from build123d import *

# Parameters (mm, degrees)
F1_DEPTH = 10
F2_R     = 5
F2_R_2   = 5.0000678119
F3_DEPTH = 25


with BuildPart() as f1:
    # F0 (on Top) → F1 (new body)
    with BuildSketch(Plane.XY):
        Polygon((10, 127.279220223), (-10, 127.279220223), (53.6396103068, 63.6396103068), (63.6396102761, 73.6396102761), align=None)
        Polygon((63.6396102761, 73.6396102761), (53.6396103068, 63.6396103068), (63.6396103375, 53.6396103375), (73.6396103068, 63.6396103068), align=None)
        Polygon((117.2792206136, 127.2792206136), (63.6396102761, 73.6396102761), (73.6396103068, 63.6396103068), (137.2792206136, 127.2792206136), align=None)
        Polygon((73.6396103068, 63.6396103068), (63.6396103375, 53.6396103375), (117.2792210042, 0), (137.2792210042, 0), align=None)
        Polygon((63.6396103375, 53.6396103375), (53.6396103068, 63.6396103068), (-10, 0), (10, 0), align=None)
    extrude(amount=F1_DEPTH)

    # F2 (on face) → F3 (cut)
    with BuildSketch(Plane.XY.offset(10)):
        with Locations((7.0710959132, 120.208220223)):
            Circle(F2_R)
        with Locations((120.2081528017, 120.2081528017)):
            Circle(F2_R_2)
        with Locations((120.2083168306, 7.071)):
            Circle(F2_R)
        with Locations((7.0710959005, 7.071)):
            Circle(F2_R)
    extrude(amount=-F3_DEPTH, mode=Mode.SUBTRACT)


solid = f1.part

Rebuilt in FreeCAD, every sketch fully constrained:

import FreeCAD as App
import Part
import Sketcher

V = App.Vector
Q = App.Units.Quantity


def add_polygon(sketch, points):
    """Adds a closed chain of lines whose ends are joined by coincident constraints."""
    first, n = sketch.GeometryCount, len(points)
    for a, b in zip(points, points[1:] + points[:1]):
        sketch.addGeometry(Part.LineSegment(App.Vector(*a, 0), App.Vector(*b, 0)), False)
    for i in range(n):
        sketch.addConstraint(Sketcher.Constraint("Coincident", first + i, 2, first + (i + 1) % n, 1))

doc = App.newDocument("Part")
params = doc.addObject("Spreadsheet::Sheet", "Params")
for row, (alias, value) in enumerate([
    ("sketch1_width", "20 mm"),
    ("sketch1_length", "90 mm"),
    ("pad1_length", "10 mm"),
    ("sketch2_diameter", "10 mm"),
    ("pocket1_length", "25 mm"),
], start=1):
    params.set(f"A{row}", alias)
    params.set(f"B{row}", "=" + value)
    params.setAlias(f"B{row}", alias)

body = doc.addObject("PartDesign::Body", "Body")

# Sketch on XY plane
sketch1 = body.newObject("Sketcher::SketchObject", "Sketch")
sketch1.AttachmentSupport = (doc.getObject("XY_Plane"), [""])
sketch1.MapMode = "FlatFace"
add_polygon(sketch1, [(10, 127), (-10, 127), (54, 64), (-10, 0), (10, 0), (64, 54), (117, 0), (137, 0), (74, 64), (137, 127), (117, 127), (64, 74)])  # lines 0-11
sketch1.addConstraint(Sketcher.Constraint("Horizontal", 0))
sketch1.addConstraint(Sketcher.Constraint("Horizontal", 3))
sketch1.addConstraint(Sketcher.Constraint("Horizontal", 6))
sketch1.addConstraint(Sketcher.Constraint("Horizontal", 9))
sketch1.addConstraint(Sketcher.Constraint("Symmetric", 2, 2, 3, 2, -1, 1))
sketch1.addConstraint(Sketcher.Constraint("PointOnObject", 5, 2, -1))
sketch1.addConstraint(Sketcher.Constraint("Perpendicular", 1, 2))
sketch1.addConstraint(Sketcher.Constraint("Parallel", 2, 4))
sketch1.addConstraint(Sketcher.Constraint("Perpendicular", 4, 5))
sketch1.addConstraint(Sketcher.Constraint("Parallel", 5, 7))
sketch1.addConstraint(Sketcher.Constraint("Perpendicular", 7, 8))
sketch1.addConstraint(Sketcher.Constraint("Parallel", 8, 10))
sketch1.addConstraint(Sketcher.Constraint("Perpendicular", 10, 11))
sketch1.addConstraint(Sketcher.Constraint("Horizontal", 1, 2, 7, 2))
sketch1.addConstraint(Sketcher.Constraint("Horizontal", 0, 2, 8, 2))
sketch1.addConstraint(Sketcher.Constraint("Vertical", 0, 2, 2, 2))
sketch1.addConstraint(Sketcher.Constraint("Vertical", 6, 2, 8, 2))
sketch1.addConstraint(Sketcher.Constraint("Vertical", 5, 2, 9, 2))
sketch1.addConstraint(Sketcher.Constraint("Vertical", 4, 2, 10, 2))
sketch1.addConstraint(Sketcher.Constraint("Equal", 3, 6))
sketch1.addConstraint(Sketcher.Constraint("DistanceX", 0, 2, 0, 1, Q("20 mm")))
sketch1.addConstraint(Sketcher.Constraint("Distance", 1, Q("90 mm")))
sketch1.addConstraint(Sketcher.Constraint("DistanceX", 1, 2, 4, 2, Q("10 mm")))
sketch1.setExpression("Constraints[32]", "Params.sketch1_width")
sketch1.setExpression("Constraints[33]", "Params.sketch1_length")
pad1 = body.newObject("PartDesign::Pad", "Pad")
pad1.Profile = sketch1
pad1.setExpression("Length", "Params.pad1_length")

# Sketch on XY plane
sketch2 = body.newObject("Sketcher::SketchObject", "Sketch001")
sketch2.AttachmentSupport = (doc.getObject("XY_Plane"), [""])
sketch2.MapMode = "FlatFace"
sketch2.AttachmentOffset = App.Placement(V(0, 0, 10), App.Rotation())
sketch2.addGeometry(Part.Circle(V(7, 120, 0), V(0, 0, 1), 5), False)
sketch2.addGeometry(Part.Circle(V(120, 120, 0), V(0, 0, 1), 5), False)
sketch2.addGeometry(Part.Circle(V(120, 7, 0), V(0, 0, 1), 5), False)
sketch2.addGeometry(Part.Circle(V(7, 7, 0), V(0, 0, 1), 5), False)
sketch2.addConstraint(Sketcher.Constraint("Equal", 0, 2))
sketch2.addConstraint(Sketcher.Constraint("Equal", 2, 3))
sketch2.addConstraint(Sketcher.Constraint("Horizontal", 2, 3, 3, 3))
sketch2.addConstraint(Sketcher.Constraint("Vertical", 0, 3, 3, 3))
sketch2.addConstraint(Sketcher.Constraint("Diameter", 0, Q("10 mm")))
sketch2.addConstraint(Sketcher.Constraint("Diameter", 1, Q("10.000136 mm")))
sketch2.addConstraint(Sketcher.Constraint("DistanceY", -1, 1, 2, 3, Q("7.071 mm")))
sketch2.addConstraint(Sketcher.Constraint("DistanceY", -1, 1, 0, 3, Q("120.20822 mm")))
sketch2.addConstraint(Sketcher.Constraint("DistanceX", 0, 3, 2, 3, Q("113.137221 mm")))
sketch2.addConstraint(Sketcher.Constraint("DistanceX", -1, 1, 0, 3, Q("7.071096 mm")))
sketch2.addConstraint(Sketcher.Constraint("DistanceX", -1, 1, 1, 3, Q("120.208153 mm")))
sketch2.addConstraint(Sketcher.Constraint("DistanceY", -1, 1, 1, 3, Q("120.208153 mm")))
sketch2.setExpression("Constraints[4]", "Params.sketch2_diameter")
pocket1 = body.newObject("PartDesign::Pocket", "Pocket")
pocket1.Profile = sketch2
pocket1.setExpression("Length", "Params.pocket1_length")

doc.recompute()
